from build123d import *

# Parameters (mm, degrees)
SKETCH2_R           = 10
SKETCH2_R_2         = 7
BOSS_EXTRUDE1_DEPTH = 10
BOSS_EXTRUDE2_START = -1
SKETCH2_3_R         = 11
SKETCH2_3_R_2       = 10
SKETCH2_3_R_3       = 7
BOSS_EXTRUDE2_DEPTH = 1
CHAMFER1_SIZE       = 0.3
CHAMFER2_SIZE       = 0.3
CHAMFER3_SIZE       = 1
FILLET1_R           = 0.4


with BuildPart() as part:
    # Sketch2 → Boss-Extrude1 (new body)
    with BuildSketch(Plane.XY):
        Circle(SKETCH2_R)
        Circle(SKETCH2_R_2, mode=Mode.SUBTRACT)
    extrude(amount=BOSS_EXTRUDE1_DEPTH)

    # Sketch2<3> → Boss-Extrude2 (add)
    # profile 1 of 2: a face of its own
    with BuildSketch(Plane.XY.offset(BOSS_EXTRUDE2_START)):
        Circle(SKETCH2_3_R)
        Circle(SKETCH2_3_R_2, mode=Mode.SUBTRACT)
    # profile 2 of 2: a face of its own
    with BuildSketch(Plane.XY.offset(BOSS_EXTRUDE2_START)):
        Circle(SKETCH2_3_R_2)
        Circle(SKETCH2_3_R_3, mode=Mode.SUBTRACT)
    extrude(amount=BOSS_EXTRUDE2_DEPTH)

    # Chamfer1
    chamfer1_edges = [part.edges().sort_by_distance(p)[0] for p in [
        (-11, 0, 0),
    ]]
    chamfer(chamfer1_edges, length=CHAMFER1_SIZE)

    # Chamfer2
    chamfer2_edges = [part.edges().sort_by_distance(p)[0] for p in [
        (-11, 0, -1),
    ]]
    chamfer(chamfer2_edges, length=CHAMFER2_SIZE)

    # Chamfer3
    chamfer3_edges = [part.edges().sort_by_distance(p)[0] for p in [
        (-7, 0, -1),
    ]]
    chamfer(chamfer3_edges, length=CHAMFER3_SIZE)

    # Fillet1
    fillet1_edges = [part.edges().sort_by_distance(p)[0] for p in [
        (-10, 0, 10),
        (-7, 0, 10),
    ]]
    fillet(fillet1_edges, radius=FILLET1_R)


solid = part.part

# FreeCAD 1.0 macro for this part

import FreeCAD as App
import Part
import Sketcher
Q = App.Units.Quantity


def edges_at(feature, points):
    """Names of the edges that pass closest to the given points."""
    edges = feature.Shape.Edges
    near = lambda p: min(range(len(edges)), key=lambda i: edges[i].distToShape(Part.Vertex(*p))[0])
    return sorted({f"Edge{near(p) + 1}" for p in points})

doc = App.newDocument("Part")
params = doc.addObject("Spreadsheet::Sheet", "Params")
for row, (alias, value) in enumerate([
    ("sketch1_diameter", "20 mm"),
    ("sketch1_diameter2", "14 mm"),
    ("pad1_length", "10 mm"),
    ("sketch2_diameter", "22 mm"),
    ("sketch2_diameter2", "14 mm"),
    ("pad2_length", "1 mm"),
    ("chamfer_size", "0.3 mm"),
    ("chamfer2_size", "0.3 mm"),
    ("chamfer3_size", "1 mm"),
    ("fillet_radius", "0.4 mm"),
], start=1):
    params.set(f"A{row}", alias)
    params.set(f"B{row}", "=" + value)
    params.setAlias(f"B{row}", alias)

body = doc.addObject("PartDesign::Body", "Body")

# Sketch on XY plane
sketch1 = body.newObject("Sketcher::SketchObject", "Sketch")
sketch1.AttachmentSupport = (doc.getObject("XY_Plane"), [""])
sketch1.MapMode = "FlatFace"
sketch1.addGeometry([
    Part.Circle(App.Vector(0, 0, 0), App.Vector(0, 0, 1), 10),
    Part.Circle(App.Vector(0, 0, 0), App.Vector(0, 0, 1), 7),
], False)
sketch1.addConstraint([
    Sketcher.Constraint("Coincident", 0, 3, -1, 1),
    Sketcher.Constraint("Coincident", 1, 3, -1, 1),
    Sketcher.Constraint("Diameter", 0, Q("20 mm")),
    Sketcher.Constraint("Diameter", 1, Q("14 mm")),
])
sketch1.setExpression("Constraints[2]", "Params.sketch1_diameter")
sketch1.setExpression("Constraints[3]", "Params.sketch1_diameter2")
pad1 = body.newObject("PartDesign::Pad", "Pad")
pad1.Profile = sketch1
pad1.setExpression("Length", "Params.pad1_length")

# Sketch on XY plane
sketch2 = body.newObject("Sketcher::SketchObject", "Sketch001")
sketch2.AttachmentSupport = (doc.getObject("XY_Plane"), [""])
sketch2.MapMode = "FlatFace"
sketch2.AttachmentOffset = App.Placement(App.Vector(0, 0, -1), App.Rotation())
sketch2.addGeometry([
    Part.Circle(App.Vector(0, 0, 0), App.Vector(0, 0, 1), 11),
    Part.Circle(App.Vector(0, 0, 0), App.Vector(0, 0, 1), 7),
], False)
sketch2.addConstraint([
    Sketcher.Constraint("Coincident", 0, 3, -1, 1),
    Sketcher.Constraint("Coincident", 1, 3, -1, 1),
    Sketcher.Constraint("Diameter", 0, Q("22 mm")),
    Sketcher.Constraint("Diameter", 1, Q("14 mm")),
])
sketch2.setExpression("Constraints[2]", "Params.sketch2_diameter")
sketch2.setExpression("Constraints[3]", "Params.sketch2_diameter2")
pad2 = body.newObject("PartDesign::Pad", "Pad001")
pad2.Profile = sketch2
pad2.setExpression("Length", "Params.pad2_length")
doc.recompute()

chamfer = body.newObject("PartDesign::Chamfer", "Chamfer")
chamfer.Base = (pad2, edges_at(pad2, [(-11, 0, 0)]))
chamfer.setExpression("Size", "Params.chamfer_size")
doc.recompute()

chamfer2 = body.newObject("PartDesign::Chamfer", "Chamfer001")
chamfer2.Base = (chamfer, edges_at(chamfer, [(-11, 0, -1)]))
chamfer2.setExpression("Size", "Params.chamfer2_size")
doc.recompute()

chamfer3 = body.newObject("PartDesign::Chamfer", "Chamfer002")
chamfer3.Base = (chamfer2, edges_at(chamfer2, [(-7, 0, -1)]))
chamfer3.setExpression("Size", "Params.chamfer3_size")
doc.recompute()

fillet = body.newObject("PartDesign::Fillet", "Fillet")
fillet.Base = (chamfer3, edges_at(chamfer3, [(-10, 0, 10), (-7, 0, 10)]))
fillet.setExpression("Radius", "Params.fillet_radius")

doc.recompute()
